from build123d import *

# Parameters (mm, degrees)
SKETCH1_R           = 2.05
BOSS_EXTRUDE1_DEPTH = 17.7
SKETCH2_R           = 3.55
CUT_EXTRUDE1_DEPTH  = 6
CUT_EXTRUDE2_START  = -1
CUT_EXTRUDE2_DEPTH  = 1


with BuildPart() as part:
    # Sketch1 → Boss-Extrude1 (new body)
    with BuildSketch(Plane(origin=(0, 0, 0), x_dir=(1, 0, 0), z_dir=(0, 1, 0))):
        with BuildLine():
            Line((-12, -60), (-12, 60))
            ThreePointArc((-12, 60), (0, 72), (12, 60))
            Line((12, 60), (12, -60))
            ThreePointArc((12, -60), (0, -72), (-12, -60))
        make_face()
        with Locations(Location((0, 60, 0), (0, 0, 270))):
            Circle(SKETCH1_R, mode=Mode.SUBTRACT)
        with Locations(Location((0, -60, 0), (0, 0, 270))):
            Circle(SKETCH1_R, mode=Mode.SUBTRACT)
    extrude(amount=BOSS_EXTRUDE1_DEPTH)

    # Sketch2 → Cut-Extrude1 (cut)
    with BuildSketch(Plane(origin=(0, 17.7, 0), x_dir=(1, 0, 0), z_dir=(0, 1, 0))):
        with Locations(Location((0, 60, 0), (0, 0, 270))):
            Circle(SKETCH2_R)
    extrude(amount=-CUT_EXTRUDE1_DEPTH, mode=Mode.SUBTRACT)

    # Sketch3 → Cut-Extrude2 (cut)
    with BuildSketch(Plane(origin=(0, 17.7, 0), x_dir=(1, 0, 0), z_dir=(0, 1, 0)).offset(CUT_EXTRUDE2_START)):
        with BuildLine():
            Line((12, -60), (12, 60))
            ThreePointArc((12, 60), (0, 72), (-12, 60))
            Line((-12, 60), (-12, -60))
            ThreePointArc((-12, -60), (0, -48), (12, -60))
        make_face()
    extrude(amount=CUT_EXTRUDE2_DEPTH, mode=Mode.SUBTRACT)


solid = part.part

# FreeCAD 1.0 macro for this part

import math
import FreeCAD as App
import Part
import Sketcher
from FreeCAD import Vector
Q = App.Units.Quantity

doc = App.newDocument("Part")
params = doc.addObject("Spreadsheet::Sheet", "Params")
for row, (alias, value) in enumerate([
    ("sketch1_radius", "12 mm"),
    ("sketch1_diameter", "4.1 mm"),
    ("sketch1_height", "120 mm"),
    ("pad1_length", "17.7 mm"),
    ("sketch2_diameter", "7.1 mm"),
    ("pocket1_length", "6 mm"),
    ("sketch3_radius", "12 mm"),
    ("sketch3_height", "120 mm"),
    ("pocket2_length", "1 mm"),
], start=1):
    params.set(f"A{row}", alias)
    params.set(f"B{row}", "=" + value)
    params.setAlias(f"B{row}", alias)

body = doc.addObject("PartDesign::Body", "Body")

sketch1 = doc.addObject("Sketcher::SketchObject", "Sketch")
body.addObject(sketch1)
sketch1.AttachmentSupport = (doc.XZ_Plane, [""])
sketch1.MapMode = "FlatFace"
sketch1.addGeometry([
    Part.LineSegment(Vector(-12, -60, 0), Vector(-12, 60, 0)),
    Part.ArcOfCircle(Part.Circle(Vector(0, 60, 0), Vector(0, 0, 1), 12), math.radians(0), math.radians(180)),
    Part.LineSegment(Vector(12, 60, 0), Vector(12, -60, 0)),
    Part.ArcOfCircle(Part.Circle(Vector(0, -60, 0), Vector(0, 0, 1), 12), math.radians(180), math.radians(360)),
    Part.Circle(Vector(0, 60, 0), Vector(0, 0, 1), 2),
    Part.Circle(Vector(0, -60, 0), Vector(0, 0, 1), 2),
], False)
sketch1.addConstraint([
    Sketcher.Constraint("Tangent", 0, 2, 1, 2),
    Sketcher.Constraint("Tangent", 1, 1, 2, 1),
    Sketcher.Constraint("Tangent", 2, 2, 3, 2),
    Sketcher.Constraint("Tangent", 3, 1, 0, 1),
    Sketcher.Constraint("Vertical", 0),
    Sketcher.Constraint("Vertical", 2),
    Sketcher.Constraint("Coincident", 4, 3, 1, 3),
    Sketcher.Constraint("Coincident", 5, 3, 3, 3),
    Sketcher.Constraint("Equal", 4, 5),
    Sketcher.Constraint("Symmetric", 1, 3, 3, 3, -1, 1),
    Sketcher.Constraint("Radius", 1, Q("12 mm")),
    Sketcher.Constraint("Diameter", 4, Q("4.1 mm")),
    Sketcher.Constraint("DistanceY", 0, 1, 0, 2, Q("120 mm")),
])
sketch1.setExpression("Constraints[10]", "Params.sketch1_radius")
sketch1.setExpression("Constraints[11]", "Params.sketch1_diameter")
sketch1.setExpression("Constraints[12]", "Params.sketch1_height")
pad1 = doc.addObject("PartDesign::Pad", "Pad")
body.addObject(pad1)
pad1.Profile = sketch1
pad1.setExpression("Length", "Params.pad1_length")
pad1.Reversed = True

sketch2 = doc.addObject("Sketcher::SketchObject", "Sketch001")
body.addObject(sketch2)
sketch2.AttachmentSupport = (doc.XZ_Plane, [""])
sketch2.MapMode = "FlatFace"
sketch2.AttachmentOffset = App.Placement(Vector(0, 0, -17.7), App.Rotation())
sketch2.addGeometry(Part.Circle(Vector(0, -60, 0), Vector(0, 0, 1), 3.5), False)
sketch2.addConstraint([
    Sketcher.Constraint("PointOnObject", 0, 3, -2),
    Sketcher.Constraint("Diameter", 0, Q("7.1 mm")),
    Sketcher.Constraint("DistanceY", 0, 3, -1, 1, Q("60 mm")),
])
sketch2.setExpression("Constraints[1]", "Params.sketch2_diameter")
pocket1 = doc.addObject("PartDesign::Pocket", "Pocket")
body.addObject(pocket1)
pocket1.Profile = sketch2
pocket1.setExpression("Length", "Params.pocket1_length")
pocket1.Reversed = True

sketch3 = doc.addObject("Sketcher::SketchObject", "Sketch002")
body.addObject(sketch3)
sketch3.AttachmentSupport = (doc.XZ_Plane, [""])
sketch3.MapMode = "FlatFace"
sketch3.AttachmentOffset = App.Placement(Vector(0, 0, -16.7), App.Rotation())
sketch3.addGeometry([
    Part.LineSegment(Vector(12, 60, 0), Vector(12, -60, 0)),
    Part.ArcOfCircle(Part.Circle(Vector(0, -60, 0), Vector(0, 0, 1), 12), math.radians(180), math.radians(360)),
    Part.LineSegment(Vector(-12, -60, 0), Vector(-12, 60, 0)),
    Part.ArcOfCircle(Part.Circle(Vector(0, 60, 0), Vector(0, 0, 1), 12), math.radians(180), math.radians(360)),
], False)
sketch3.addConstraint([
    Sketcher.Constraint("Tangent", 0, 2, 1, 2),
    Sketcher.Constraint("Tangent", 1, 1, 2, 1),
    Sketcher.Constraint("Tangent", 2, 2, 3, 1),
    Sketcher.Constraint("Tangent", 3, 2, 0, 1),
    Sketcher.Constraint("Vertical", 0),
    Sketcher.Constraint("Vertical", 2),
    Sketcher.Constraint("Symmetric", 1, 3, 3, 3, -1, 1),
    Sketcher.Constraint("Radius", 1, Q("12 mm")),
    Sketcher.Constraint("DistanceY", 0, 2, 0, 1, Q("120 mm")),
])
sketch3.setExpression("Constraints[7]", "Params.sketch3_radius")
sketch3.setExpression("Constraints[8]", "Params.sketch3_height")
pocket2 = doc.addObject("PartDesign::Pocket", "Pocket001")
body.addObject(pocket2)
pocket2.Profile = sketch3
pocket2.setExpression("Length", "Params.pocket2_length")

doc.recompute()
